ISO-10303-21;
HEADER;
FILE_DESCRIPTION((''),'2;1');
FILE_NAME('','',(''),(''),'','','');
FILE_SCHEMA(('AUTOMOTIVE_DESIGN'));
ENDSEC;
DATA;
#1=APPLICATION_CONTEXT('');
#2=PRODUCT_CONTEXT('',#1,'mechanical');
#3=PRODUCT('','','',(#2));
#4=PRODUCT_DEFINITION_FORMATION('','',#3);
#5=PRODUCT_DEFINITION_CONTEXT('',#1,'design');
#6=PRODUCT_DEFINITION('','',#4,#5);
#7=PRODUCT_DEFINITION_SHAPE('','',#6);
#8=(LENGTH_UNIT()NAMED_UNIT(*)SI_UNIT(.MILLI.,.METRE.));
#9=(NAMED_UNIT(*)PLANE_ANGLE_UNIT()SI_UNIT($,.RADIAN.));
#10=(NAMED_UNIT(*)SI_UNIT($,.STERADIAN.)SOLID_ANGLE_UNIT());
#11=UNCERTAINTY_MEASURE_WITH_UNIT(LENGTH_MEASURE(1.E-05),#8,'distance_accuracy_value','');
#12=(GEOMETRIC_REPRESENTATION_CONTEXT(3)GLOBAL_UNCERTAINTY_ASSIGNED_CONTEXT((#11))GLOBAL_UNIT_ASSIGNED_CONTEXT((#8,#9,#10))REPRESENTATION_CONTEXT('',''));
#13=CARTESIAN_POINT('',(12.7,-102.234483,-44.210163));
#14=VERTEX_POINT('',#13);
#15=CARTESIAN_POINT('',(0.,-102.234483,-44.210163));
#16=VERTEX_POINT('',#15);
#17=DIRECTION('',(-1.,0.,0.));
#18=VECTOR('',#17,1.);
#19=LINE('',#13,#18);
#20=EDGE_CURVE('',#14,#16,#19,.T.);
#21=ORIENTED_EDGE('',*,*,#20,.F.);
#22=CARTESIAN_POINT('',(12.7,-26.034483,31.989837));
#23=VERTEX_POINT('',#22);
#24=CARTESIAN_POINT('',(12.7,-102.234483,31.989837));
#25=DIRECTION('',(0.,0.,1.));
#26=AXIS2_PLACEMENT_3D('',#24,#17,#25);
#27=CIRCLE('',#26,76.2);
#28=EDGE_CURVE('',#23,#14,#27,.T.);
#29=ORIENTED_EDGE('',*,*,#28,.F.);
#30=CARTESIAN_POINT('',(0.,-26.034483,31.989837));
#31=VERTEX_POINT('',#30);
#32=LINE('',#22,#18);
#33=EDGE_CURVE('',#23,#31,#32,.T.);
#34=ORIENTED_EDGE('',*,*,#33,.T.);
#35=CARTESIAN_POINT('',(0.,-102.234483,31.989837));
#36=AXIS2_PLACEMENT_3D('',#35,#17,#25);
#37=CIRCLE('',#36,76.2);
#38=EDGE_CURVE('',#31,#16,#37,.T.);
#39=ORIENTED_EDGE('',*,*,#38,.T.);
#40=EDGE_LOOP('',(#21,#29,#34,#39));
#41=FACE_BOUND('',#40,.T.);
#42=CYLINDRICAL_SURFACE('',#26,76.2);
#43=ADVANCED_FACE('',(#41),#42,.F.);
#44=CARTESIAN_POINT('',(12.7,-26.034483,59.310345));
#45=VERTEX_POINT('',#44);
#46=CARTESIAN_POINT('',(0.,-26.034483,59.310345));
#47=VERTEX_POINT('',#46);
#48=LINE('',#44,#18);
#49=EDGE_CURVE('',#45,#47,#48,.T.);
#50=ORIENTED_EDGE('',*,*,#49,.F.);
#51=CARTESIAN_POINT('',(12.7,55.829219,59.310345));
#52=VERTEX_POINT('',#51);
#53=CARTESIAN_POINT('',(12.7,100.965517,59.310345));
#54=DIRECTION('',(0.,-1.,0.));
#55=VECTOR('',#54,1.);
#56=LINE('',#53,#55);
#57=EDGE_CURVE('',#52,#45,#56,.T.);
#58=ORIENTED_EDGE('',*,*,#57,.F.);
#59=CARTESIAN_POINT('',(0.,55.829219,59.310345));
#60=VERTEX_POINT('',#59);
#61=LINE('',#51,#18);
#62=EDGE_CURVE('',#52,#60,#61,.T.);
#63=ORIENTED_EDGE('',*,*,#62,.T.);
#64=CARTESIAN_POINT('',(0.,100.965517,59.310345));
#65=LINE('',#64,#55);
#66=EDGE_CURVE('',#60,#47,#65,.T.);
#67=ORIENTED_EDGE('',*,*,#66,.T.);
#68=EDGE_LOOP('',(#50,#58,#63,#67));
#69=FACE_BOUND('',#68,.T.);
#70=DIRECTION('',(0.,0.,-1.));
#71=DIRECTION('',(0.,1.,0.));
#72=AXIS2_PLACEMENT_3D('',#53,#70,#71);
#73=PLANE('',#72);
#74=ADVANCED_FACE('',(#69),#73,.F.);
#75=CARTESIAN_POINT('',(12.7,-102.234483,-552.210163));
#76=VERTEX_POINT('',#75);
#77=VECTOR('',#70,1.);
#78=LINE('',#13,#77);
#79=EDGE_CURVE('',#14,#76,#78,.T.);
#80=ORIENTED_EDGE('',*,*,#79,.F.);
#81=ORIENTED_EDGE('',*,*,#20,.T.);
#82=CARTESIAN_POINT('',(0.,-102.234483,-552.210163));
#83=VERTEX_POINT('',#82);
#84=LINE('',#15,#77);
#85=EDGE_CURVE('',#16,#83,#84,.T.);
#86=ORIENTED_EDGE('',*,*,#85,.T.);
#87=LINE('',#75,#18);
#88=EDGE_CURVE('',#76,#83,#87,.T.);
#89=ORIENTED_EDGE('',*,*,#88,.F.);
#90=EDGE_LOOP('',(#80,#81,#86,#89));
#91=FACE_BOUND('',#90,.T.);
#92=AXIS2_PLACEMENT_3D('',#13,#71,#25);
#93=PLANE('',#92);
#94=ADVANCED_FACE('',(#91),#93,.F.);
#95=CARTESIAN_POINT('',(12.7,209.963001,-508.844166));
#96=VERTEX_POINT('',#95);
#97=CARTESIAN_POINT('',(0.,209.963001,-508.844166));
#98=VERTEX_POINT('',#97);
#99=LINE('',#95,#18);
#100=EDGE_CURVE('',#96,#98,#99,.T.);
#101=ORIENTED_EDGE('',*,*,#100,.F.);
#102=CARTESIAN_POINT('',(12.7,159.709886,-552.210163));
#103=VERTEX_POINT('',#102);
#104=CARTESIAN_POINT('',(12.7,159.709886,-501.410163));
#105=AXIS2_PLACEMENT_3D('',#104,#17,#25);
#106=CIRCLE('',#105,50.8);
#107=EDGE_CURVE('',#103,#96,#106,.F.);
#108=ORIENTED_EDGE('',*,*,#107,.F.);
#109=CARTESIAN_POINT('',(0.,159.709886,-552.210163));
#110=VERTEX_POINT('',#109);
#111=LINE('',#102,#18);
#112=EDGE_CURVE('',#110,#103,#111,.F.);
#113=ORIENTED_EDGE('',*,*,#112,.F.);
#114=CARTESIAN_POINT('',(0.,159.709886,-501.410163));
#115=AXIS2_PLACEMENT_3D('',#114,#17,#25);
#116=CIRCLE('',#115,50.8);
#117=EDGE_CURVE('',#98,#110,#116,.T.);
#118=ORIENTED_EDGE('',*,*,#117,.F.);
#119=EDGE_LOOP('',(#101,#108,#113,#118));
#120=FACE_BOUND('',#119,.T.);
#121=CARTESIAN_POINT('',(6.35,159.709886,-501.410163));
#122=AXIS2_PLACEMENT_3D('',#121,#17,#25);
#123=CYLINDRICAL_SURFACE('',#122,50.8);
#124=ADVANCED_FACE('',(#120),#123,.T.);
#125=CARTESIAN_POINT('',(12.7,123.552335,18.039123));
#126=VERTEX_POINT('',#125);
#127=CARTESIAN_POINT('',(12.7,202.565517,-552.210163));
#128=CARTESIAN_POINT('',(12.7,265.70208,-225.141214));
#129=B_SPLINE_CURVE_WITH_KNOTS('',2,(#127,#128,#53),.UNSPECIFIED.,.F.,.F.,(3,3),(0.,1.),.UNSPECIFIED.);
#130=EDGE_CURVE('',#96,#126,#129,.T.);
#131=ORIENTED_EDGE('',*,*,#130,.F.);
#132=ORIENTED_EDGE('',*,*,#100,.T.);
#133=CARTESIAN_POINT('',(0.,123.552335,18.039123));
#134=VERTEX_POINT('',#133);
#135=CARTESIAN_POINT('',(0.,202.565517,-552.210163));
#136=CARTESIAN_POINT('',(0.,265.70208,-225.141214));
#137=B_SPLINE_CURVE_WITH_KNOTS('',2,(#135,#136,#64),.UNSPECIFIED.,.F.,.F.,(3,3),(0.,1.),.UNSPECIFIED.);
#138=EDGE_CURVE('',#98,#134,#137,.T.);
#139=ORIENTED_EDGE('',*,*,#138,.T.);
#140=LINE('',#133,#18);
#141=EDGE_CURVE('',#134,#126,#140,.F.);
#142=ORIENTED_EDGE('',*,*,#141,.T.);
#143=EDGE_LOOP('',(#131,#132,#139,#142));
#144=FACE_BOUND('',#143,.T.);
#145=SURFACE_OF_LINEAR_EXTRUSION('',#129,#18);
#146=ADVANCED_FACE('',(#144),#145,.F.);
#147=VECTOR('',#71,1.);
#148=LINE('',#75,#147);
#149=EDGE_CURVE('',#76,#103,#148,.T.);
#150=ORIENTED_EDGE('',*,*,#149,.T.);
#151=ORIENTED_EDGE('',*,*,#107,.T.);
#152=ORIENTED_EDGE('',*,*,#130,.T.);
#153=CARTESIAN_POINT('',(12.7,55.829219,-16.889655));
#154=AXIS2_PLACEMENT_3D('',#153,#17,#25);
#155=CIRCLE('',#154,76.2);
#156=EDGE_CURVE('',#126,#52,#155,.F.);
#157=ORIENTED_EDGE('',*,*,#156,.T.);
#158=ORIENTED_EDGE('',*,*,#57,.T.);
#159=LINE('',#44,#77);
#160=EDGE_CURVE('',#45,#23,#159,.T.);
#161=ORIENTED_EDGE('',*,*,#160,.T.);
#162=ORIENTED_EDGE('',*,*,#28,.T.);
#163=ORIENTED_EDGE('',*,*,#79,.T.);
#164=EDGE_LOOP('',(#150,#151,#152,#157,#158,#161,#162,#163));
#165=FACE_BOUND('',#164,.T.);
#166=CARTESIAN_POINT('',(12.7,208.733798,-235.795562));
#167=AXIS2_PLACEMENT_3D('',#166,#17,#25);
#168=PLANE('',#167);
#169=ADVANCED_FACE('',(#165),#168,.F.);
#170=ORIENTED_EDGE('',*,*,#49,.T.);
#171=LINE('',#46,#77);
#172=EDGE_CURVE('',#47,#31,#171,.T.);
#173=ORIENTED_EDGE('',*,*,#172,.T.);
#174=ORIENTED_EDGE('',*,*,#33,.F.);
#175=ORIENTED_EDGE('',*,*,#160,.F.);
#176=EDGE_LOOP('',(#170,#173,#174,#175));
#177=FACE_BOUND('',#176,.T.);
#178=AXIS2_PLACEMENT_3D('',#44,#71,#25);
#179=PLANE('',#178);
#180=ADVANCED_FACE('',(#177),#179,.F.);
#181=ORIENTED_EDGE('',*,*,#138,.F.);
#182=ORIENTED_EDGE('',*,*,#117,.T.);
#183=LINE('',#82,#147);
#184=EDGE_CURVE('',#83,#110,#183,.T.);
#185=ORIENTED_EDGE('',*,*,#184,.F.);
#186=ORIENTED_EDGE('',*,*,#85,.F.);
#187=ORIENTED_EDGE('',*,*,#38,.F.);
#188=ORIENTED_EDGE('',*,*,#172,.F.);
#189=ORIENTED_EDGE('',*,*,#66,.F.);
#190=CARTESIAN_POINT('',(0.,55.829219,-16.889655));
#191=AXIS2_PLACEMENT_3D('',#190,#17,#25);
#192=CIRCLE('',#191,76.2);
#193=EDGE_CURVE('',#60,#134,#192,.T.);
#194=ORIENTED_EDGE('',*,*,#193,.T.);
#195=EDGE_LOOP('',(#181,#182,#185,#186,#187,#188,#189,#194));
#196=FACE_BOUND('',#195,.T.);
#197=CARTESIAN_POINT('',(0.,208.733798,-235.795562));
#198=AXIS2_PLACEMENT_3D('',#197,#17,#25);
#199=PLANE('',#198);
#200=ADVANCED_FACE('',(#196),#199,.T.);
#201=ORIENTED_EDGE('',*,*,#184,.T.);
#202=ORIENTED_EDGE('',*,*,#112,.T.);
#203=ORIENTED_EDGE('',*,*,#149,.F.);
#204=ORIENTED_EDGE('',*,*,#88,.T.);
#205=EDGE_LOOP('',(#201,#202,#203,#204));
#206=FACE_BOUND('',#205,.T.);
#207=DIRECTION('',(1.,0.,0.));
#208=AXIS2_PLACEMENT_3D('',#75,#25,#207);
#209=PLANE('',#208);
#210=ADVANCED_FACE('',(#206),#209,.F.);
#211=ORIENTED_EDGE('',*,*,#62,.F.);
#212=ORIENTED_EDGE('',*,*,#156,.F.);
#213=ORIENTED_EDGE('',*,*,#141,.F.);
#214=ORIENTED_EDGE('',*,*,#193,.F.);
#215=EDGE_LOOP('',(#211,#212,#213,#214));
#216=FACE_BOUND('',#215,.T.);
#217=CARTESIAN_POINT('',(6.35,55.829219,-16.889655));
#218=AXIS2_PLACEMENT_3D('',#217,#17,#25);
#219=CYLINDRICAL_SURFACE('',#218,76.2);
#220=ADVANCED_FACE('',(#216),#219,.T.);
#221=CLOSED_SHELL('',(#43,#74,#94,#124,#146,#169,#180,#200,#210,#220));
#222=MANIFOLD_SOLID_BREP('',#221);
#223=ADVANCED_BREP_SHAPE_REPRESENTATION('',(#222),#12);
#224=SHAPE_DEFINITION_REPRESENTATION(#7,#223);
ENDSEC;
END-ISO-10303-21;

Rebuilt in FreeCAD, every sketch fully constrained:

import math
import FreeCAD as App
import Part
import Sketcher

V = App.Vector
Q = App.Units.Quantity


def edges_at(feature, points):
    """Names of the edges that pass closest to the given points."""
    edges = feature.Shape.Edges
    near = lambda p: min(range(len(edges)), key=lambda i: edges[i].distToShape(Part.Vertex(*p))[0])
    return sorted({f"Edge{near(p) + 1}" for p in points})

doc = App.newDocument("Part")
body = doc.addObject("PartDesign::Body", "Body")

sketch1 = doc.addObject("Sketcher::SketchObject", "Sketch")
body.addObject(sketch1)
sketch1.AttachmentSupport = (doc.YZ_Plane, [""])
sketch1.MapMode = "FlatFace"
sketch1.addGeometry(Part.LineSegment(V(100.965517, 59.310345, 0), V(-26.034483, 59.310345, 0)), False)
sketch1.addGeometry(Part.LineSegment(V(-26.034483, 59.310345, 0), V(-26.034483, 31.989837, 0)), False)
sketch1.addGeometry(Part.ArcOfCircle(Part.Circle(V(-102.234483, 31.989837, 0), V(0, 0, 1), 76.2), math.radians(-90), math.radians(0)), False)
sketch1.addGeometry(Part.LineSegment(V(-102.234483, -44.210163, 0), V(-102.234483, -552.210163, 0)), False)
sketch1.addGeometry(Part.LineSegment(V(-102.234483, -552.210163, 0), V(202.565517, -552.210163, 0)), False)
sketch1.addGeometry(Part.BSplineCurve([V(202.565517, -552.210163, 0), V(265.70208, -225.141214, 0), V(100.965517, 59.310345, 0)], [3, 3], [0, 1], False, 2, [1, 1, 1], False), False)
sketch1.addConstraint(Sketcher.Constraint("Block", 5))
sketch1.addConstraint(Sketcher.Constraint("Coincident", 0, 2, 1, 1))
sketch1.addConstraint(Sketcher.Constraint("Tangent", 1, 2, 2, 2))
sketch1.addConstraint(Sketcher.Constraint("Coincident", 2, 1, 3, 1))
sketch1.addConstraint(Sketcher.Constraint("Coincident", 3, 2, 4, 1))
sketch1.addConstraint(Sketcher.Constraint("Coincident", 4, 2, 5, 1))
sketch1.addConstraint(Sketcher.Constraint("Coincident", 5, 2, 0, 1))
sketch1.addConstraint(Sketcher.Constraint("Horizontal", 0))
sketch1.addConstraint(Sketcher.Constraint("Vertical", 1))
sketch1.addConstraint(Sketcher.Constraint("Vertical", 3))
sketch1.addConstraint(Sketcher.Constraint("Horizontal", 4))
sketch1.addConstraint(Sketcher.Constraint("Radius", 2, Q("3 in")))
sketch1.addConstraint(Sketcher.Constraint("DistanceX", 0, 2, 0, 1, Q("5 in")))
sketch1.addConstraint(Sketcher.Constraint("DistanceX", 4, 1, 4, 2, Q("12 in")))
sketch1.addConstraint(Sketcher.Constraint("DistanceY", 3, 2, 3, 1, Q("20 in")))
pad1 = doc.addObject("PartDesign::Pad", "Pad")
body.addObject(pad1)
pad1.Profile = sketch1
pad1.Length = Q("0.5 in")
doc.recompute()

fillet = doc.addObject("PartDesign::Fillet", "Fillet")
body.addObject(fillet)
fillet.Base = (pad1, edges_at(pad1, [(6.35, 100.966, 59.31)]))
fillet.Radius = Q("3 in")
doc.recompute()

fillet2 = doc.addObject("PartDesign::Fillet", "Fillet001")
body.addObject(fillet2)
fillet2.Base = (fillet, edges_at(fillet, [(6.35, 202.566, -552.21)]))
fillet2.Radius = Q("2 in")

doc.recompute()
